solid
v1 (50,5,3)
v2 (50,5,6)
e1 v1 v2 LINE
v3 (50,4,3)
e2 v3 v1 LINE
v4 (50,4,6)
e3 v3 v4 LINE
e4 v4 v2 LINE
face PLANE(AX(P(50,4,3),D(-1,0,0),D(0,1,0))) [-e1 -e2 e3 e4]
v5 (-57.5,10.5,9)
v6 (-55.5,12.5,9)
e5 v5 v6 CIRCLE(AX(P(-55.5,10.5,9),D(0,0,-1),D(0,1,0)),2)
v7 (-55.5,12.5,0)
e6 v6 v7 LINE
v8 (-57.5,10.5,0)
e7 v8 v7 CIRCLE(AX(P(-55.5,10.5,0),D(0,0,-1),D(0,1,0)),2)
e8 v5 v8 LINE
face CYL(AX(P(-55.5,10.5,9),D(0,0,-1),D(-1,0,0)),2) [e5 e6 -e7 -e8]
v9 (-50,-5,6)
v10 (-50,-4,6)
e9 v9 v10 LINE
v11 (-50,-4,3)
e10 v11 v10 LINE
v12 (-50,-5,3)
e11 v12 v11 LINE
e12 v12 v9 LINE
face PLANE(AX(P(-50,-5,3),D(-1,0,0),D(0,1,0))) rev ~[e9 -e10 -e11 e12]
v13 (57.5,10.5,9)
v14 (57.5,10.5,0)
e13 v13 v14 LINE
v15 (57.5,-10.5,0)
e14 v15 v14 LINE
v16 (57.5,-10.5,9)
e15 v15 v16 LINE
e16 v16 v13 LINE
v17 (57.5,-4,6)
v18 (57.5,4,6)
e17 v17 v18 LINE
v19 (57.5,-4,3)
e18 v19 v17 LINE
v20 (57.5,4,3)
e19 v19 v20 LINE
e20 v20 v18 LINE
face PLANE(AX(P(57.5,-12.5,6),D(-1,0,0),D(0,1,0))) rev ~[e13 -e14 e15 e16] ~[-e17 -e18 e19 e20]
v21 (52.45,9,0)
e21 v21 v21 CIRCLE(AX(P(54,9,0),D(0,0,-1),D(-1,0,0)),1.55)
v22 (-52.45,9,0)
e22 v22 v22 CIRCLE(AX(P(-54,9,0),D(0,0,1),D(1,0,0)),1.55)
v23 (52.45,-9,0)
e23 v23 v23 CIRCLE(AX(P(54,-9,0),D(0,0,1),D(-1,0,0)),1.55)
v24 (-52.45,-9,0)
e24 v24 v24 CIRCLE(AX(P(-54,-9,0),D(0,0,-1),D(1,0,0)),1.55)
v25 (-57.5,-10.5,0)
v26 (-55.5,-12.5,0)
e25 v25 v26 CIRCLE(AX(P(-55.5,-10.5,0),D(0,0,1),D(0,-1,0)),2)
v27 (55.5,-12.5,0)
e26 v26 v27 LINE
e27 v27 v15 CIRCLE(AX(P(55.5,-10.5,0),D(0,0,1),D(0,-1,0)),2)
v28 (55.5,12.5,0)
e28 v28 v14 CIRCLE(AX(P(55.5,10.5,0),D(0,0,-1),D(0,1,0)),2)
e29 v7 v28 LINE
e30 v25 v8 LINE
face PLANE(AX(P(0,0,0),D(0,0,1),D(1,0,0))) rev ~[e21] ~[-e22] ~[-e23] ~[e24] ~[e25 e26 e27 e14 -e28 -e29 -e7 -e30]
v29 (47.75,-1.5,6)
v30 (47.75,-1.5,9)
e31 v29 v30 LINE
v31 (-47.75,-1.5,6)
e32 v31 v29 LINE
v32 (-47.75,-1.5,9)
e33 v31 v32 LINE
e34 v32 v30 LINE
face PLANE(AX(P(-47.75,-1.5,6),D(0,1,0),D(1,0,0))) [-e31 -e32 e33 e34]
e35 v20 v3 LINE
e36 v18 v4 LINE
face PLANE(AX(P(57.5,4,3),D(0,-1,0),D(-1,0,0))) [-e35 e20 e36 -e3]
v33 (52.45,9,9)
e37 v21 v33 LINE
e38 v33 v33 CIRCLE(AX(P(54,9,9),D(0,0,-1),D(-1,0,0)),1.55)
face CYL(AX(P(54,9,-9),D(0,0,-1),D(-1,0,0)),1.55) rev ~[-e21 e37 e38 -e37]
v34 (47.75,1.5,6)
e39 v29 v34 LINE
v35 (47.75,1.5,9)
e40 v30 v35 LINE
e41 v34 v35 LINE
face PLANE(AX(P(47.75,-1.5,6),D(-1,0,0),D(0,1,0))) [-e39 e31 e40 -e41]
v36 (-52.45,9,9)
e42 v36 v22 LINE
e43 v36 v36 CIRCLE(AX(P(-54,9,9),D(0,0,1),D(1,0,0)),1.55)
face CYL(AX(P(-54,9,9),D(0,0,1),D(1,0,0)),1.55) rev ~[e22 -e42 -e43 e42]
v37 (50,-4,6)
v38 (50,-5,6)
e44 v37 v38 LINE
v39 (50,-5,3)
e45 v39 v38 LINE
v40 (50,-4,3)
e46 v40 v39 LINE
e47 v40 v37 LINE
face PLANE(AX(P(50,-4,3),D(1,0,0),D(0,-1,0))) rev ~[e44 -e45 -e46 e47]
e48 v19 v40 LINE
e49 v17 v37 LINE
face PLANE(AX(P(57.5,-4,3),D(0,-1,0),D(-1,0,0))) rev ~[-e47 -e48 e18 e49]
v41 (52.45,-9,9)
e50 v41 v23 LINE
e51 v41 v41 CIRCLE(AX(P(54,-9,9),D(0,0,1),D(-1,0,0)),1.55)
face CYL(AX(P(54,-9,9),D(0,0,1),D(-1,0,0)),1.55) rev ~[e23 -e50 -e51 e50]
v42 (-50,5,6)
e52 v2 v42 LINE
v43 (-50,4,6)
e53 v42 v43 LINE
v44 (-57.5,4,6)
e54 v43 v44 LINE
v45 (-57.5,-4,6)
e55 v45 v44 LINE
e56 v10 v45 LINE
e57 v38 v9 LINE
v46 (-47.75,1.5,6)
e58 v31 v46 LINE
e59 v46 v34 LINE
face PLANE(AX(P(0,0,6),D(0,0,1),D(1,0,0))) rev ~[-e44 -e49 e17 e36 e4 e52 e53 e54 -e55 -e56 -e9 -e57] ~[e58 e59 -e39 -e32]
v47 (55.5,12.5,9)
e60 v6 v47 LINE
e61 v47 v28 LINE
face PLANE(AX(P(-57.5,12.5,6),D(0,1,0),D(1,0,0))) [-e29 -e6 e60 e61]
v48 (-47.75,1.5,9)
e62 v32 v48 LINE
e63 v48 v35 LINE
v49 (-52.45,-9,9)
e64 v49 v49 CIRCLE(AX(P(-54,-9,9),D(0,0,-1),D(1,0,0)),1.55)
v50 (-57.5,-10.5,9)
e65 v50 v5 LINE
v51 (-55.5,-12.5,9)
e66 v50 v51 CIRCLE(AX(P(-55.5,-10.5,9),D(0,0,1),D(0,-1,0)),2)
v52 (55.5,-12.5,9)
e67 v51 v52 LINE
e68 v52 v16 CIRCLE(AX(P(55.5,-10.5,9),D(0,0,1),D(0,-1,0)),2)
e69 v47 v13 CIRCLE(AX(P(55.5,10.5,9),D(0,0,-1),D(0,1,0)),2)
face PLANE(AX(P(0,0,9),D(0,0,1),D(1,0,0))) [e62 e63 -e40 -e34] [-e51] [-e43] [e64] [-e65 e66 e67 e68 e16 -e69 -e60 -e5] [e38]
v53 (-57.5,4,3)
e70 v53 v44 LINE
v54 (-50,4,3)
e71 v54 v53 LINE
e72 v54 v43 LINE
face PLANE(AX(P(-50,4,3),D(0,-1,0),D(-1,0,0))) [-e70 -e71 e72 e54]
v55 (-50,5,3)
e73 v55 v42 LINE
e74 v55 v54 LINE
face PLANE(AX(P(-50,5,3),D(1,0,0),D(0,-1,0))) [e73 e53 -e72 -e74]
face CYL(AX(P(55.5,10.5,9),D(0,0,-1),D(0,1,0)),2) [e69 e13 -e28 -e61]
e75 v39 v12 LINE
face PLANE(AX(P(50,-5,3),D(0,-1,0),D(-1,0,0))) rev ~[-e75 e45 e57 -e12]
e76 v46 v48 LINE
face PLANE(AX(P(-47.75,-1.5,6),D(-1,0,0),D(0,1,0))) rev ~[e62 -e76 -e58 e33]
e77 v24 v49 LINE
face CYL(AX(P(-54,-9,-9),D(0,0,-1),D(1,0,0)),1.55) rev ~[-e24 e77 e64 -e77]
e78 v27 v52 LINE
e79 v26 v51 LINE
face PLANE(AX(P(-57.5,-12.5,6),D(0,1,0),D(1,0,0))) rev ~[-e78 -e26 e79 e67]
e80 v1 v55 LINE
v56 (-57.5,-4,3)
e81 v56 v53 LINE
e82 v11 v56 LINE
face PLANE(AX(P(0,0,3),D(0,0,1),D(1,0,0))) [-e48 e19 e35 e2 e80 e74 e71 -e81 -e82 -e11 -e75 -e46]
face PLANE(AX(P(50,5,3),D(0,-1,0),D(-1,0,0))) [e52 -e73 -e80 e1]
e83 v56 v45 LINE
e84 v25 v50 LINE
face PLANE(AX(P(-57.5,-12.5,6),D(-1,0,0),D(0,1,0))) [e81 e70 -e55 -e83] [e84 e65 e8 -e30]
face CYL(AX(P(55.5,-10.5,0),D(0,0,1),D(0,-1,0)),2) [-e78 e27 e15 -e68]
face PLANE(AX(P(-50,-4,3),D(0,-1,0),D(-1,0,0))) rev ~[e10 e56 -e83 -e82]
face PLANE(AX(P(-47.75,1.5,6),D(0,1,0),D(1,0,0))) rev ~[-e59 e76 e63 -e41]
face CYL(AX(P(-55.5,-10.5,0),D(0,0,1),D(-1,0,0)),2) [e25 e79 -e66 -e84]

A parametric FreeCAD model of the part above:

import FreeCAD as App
import Part
import Sketcher


def edges_at(feature, points):
    """Names of the edges that pass closest to the given points."""
    edges = feature.Shape.Edges
    near = lambda p: min(range(len(edges)), key=lambda i: edges[i].distToShape(Part.Vertex(*p))[0])
    return sorted({f"Edge{near(p) + 1}" for p in points})


def add_polygon(sketch, points):
    """Adds a closed chain of lines whose ends are joined by coincident constraints."""
    first, n = sketch.GeometryCount, len(points)
    for a, b in zip(points, points[1:] + points[:1]):
        sketch.addGeometry(Part.LineSegment(App.Vector(*a, 0), App.Vector(*b, 0)), False)
    for i in range(n):
        sketch.addConstraint(Sketcher.Constraint("Coincident", first + i, 2, first + (i + 1) % n, 1))

doc = App.newDocument("Part")
params = doc.addObject("Spreadsheet::Sheet", "Params")
for row, (alias, value) in enumerate([
    ("sketch1_width", "115 mm"),
    ("sketch1_height", "25 mm"),
    ("pad1_length", "3 mm"),
    ("sketch2_width", "115 mm"),
    ("sketch2_width2", "100 mm"),
    ("sketch2_height", "1 mm"),
    ("sketch2_height2", "8.5 mm"),
    ("pad2_length", "3 mm"),
    ("sketch3_width", "115 mm"),
    ("sketch3_height", "25 mm"),
    ("sketch3_height2", "3 mm"),
    ("sketch3_width2", "95.5 mm"),
    ("pad3_length", "3 mm"),
    ("sketch4_diameter", "3.1 mm"),
    ("fillet_radius", "2 mm"),
], start=1):
    params.set(f"A{row}", alias)
    params.set(f"B{row}", "=" + value)
    params.setAlias(f"B{row}", alias)

body = doc.addObject("PartDesign::Body", "Body")

sketch1 = doc.addObject("Sketcher::SketchObject", "Sketch")
body.addObject(sketch1)
sketch1.AttachmentSupport = (doc.XY_Plane, [""])
sketch1.MapMode = "FlatFace"
add_polygon(sketch1, [(-58, 12), (-58, -12), (58, -12), (58, 12)])
sketch1.addConstraint([
    Sketcher.Constraint("Vertical", 0),
    Sketcher.Constraint("Horizontal", 1),
    Sketcher.Constraint("Vertical", 2),
    Sketcher.Constraint("Horizontal", 3),
    Sketcher.Constraint("Symmetric", 0, 2, 2, 2, -1, 1),
    Sketcher.Constraint("DistanceX", 1, 1, 1, 2, 115.0),
    Sketcher.Constraint("DistanceY", 0, 2, 0, 1, 25.0),
])
sketch1.setExpression("Constraints[9]", "Params.sketch1_width")
sketch1.setExpression("Constraints[10]", "Params.sketch1_height")
pad1 = doc.addObject("PartDesign::Pad", "Pad")
body.addObject(pad1)
pad1.Profile = sketch1
pad1.setExpression("Length", "Params.pad1_length")

sketch2 = doc.addObject("Sketcher::SketchObject", "Sketch001")
body.addObject(sketch2)
sketch2.AttachmentSupport = (doc.XY_Plane, [""])
sketch2.MapMode = "FlatFace"
sketch2.AttachmentOffset = App.Placement(App.Vector(0, 0, 3), App.Rotation())
add_polygon(sketch2, [(57.5, 12.5), (-57.5, 12.5), (-57.5, 4), (-50, 4), (-50, 5), (50, 5), (50, 4), (57.5, 4)])
add_polygon(sketch2, [(-57.5, -12.5), (57.5, -12.5), (57.5, -4), (50, -4), (50, -5), (-50, -5), (-50, -4), (-57.5, -4)])
sketch2.addConstraint([
    Sketcher.Constraint("Horizontal", 0),
    Sketcher.Constraint("Vertical", 1),
    Sketcher.Constraint("Horizontal", 2),
    Sketcher.Constraint("Vertical", 3),
    Sketcher.Constraint("Horizontal", 4),
    Sketcher.Constraint("Vertical", 5),
    Sketcher.Constraint("Horizontal", 6),
    Sketcher.Constraint("Vertical", 7),
    Sketcher.Constraint("Horizontal", 8),
    Sketcher.Constraint("Vertical", 9),
    Sketcher.Constraint("Horizontal", 10),
    Sketcher.Constraint("Vertical", 11),
    Sketcher.Constraint("Horizontal", 12),
    Sketcher.Constraint("Vertical", 13),
    Sketcher.Constraint("Horizontal", 14),
    Sketcher.Constraint("Vertical", 15),
    Sketcher.Constraint("Symmetric", 0, 2, 8, 2, -1, 1),
    Sketcher.Constraint("Symmetric", 2, 2, 10, 2, -1, 1),
    Sketcher.Constraint("Symmetric", 4, 2, 12, 2, -1, 1),
    Sketcher.Constraint("Symmetric", 6, 2, 14, 2, -1, 1),
    Sketcher.Constraint("Symmetric", 2, 2, 5, 2, -2),
    Sketcher.Constraint("Vertical", 7, 2, 8, 2),
    Sketcher.Constraint("DistanceX", 0, 2, 0, 1, 115.0),
    Sketcher.Constraint("DistanceX", 4, 1, 4, 2, 100.0),
    Sketcher.Constraint("DistanceY", 3, 1, 3, 2, 1.0),
    Sketcher.Constraint("DistanceY", 1, 2, 1, 1, 8.5),
    Sketcher.Constraint("DistanceY", -1, 1, 1, 2, 4.0),
])
sketch2.setExpression("Constraints[38]", "Params.sketch2_width")
sketch2.setExpression("Constraints[39]", "Params.sketch2_width2")
sketch2.setExpression("Constraints[40]", "Params.sketch2_height")
sketch2.setExpression("Constraints[41]", "Params.sketch2_height2")
pad2 = doc.addObject("PartDesign::Pad", "Pad001")
body.addObject(pad2)
pad2.Profile = sketch2
pad2.setExpression("Length", "Params.pad2_length")

sketch3 = doc.addObject("Sketcher::SketchObject", "Sketch002")
body.addObject(sketch3)
sketch3.AttachmentSupport = (doc.XY_Plane, [""])
sketch3.MapMode = "FlatFace"
sketch3.AttachmentOffset = App.Placement(App.Vector(0, 0, 6), App.Rotation())
add_polygon(sketch3, [(-57.5, 12.5), (-57.5, -12.5), (57.5, -12.5), (57.5, 12.5)])
add_polygon(sketch3, [(47.8, -1.5), (-47.8, -1.5), (-47.8, 1.5), (47.8, 1.5)])
sketch3.addConstraint([
    Sketcher.Constraint("Vertical", 0),
    Sketcher.Constraint("Horizontal", 1),
    Sketcher.Constraint("Vertical", 2),
    Sketcher.Constraint("Horizontal", 3),
    Sketcher.Constraint("Horizontal", 4),
    Sketcher.Constraint("Vertical", 5),
    Sketcher.Constraint("Horizontal", 6),
    Sketcher.Constraint("Vertical", 7),
    Sketcher.Constraint("Symmetric", 0, 2, 2, 2, -1, 1),
    Sketcher.Constraint("Symmetric", 4, 2, 6, 2, -1, 1),
    Sketcher.Constraint("DistanceX", 1, 1, 1, 2, 115.0),
    Sketcher.Constraint("DistanceY", 0, 2, 0, 1, 25.0),
    Sketcher.Constraint("DistanceY", 5, 1, 5, 2, 3.0),
    Sketcher.Constraint("DistanceX", 4, 2, 4, 1, 95.5),
])
sketch3.setExpression("Constraints[18]", "Params.sketch3_width")
sketch3.setExpression("Constraints[19]", "Params.sketch3_height")
sketch3.setExpression("Constraints[20]", "Params.sketch3_height2")
sketch3.setExpression("Constraints[21]", "Params.sketch3_width2")
pad3 = doc.addObject("PartDesign::Pad", "Pad002")
body.addObject(pad3)
pad3.Profile = sketch3
pad3.setExpression("Length", "Params.pad3_length")

sketch4 = doc.addObject("Sketcher::SketchObject", "Sketch003")
body.addObject(sketch4)
sketch4.AttachmentSupport = (doc.XY_Plane, [""])
sketch4.MapMode = "FlatFace"
sketch4.AttachmentOffset = App.Placement(App.Vector(0, 0, 9), App.Rotation())
sketch4.addGeometry(Part.Circle(App.Vector(-54, 9, 0), App.Vector(0, 0, 1), 1.6), False)
sketch4.addConstraint([
    Sketcher.Constraint("Diameter", 0, 3.1),
    Sketcher.Constraint("DistanceX", 0, 3, -1, 1, 54.0),
    Sketcher.Constraint("DistanceY", -1, 1, 0, 3, 9.0),
])
sketch4.setExpression("Constraints[0]", "Params.sketch4_diameter")
pocket1 = doc.addObject("PartDesign::Pocket", "Pocket")
body.addObject(pocket1)
pocket1.Profile = sketch4
pocket1.Type = "ThroughAll"
doc.recompute()

polarpattern = doc.addObject("PartDesign::PolarPattern", "PolarPattern")
body.addObject(polarpattern)
polarpattern.Originals = [pocket1]
polarpattern.Axis = (doc.Y_Axis, [""])
polarpattern.Angle = 360
polarpattern.Occurrences = 2
body.Tip = polarpattern
doc.recompute()

polarpattern2 = doc.addObject("PartDesign::PolarPattern", "PolarPattern001")
body.addObject(polarpattern2)
polarpattern2.Originals = [pocket1]
polarpattern2.Axis = (doc.X_Axis, [""])
polarpattern2.Angle = 360
polarpattern2.Occurrences = 2
body.Tip = polarpattern2
doc.recompute()

polarpattern3 = doc.addObject("PartDesign::PolarPattern", "PolarPattern002")
body.addObject(polarpattern3)
polarpattern3.Originals = [pocket1]
polarpattern3.Axis = (doc.Z_Axis, [""])
polarpattern3.Angle = 360
polarpattern3.Occurrences = 2
body.Tip = polarpattern3
doc.recompute()

fillet = doc.addObject("PartDesign::Fillet", "Fillet")
body.addObject(fillet)
fillet.Base = (polarpattern3, edges_at(polarpattern3, [
    (57.5, 12.5, 4.5),
    (57.5, 12.5, 4.5),
    (57.5, 12.5, 4.5),
    (57.5, -12.5, 4.5),
    (-57.5, 12.5, 4.5),
    (-57.5, -12.5, 4.5),
]))
fillet.setExpression("Radius", "Params.fillet_radius")

doc.recompute()
